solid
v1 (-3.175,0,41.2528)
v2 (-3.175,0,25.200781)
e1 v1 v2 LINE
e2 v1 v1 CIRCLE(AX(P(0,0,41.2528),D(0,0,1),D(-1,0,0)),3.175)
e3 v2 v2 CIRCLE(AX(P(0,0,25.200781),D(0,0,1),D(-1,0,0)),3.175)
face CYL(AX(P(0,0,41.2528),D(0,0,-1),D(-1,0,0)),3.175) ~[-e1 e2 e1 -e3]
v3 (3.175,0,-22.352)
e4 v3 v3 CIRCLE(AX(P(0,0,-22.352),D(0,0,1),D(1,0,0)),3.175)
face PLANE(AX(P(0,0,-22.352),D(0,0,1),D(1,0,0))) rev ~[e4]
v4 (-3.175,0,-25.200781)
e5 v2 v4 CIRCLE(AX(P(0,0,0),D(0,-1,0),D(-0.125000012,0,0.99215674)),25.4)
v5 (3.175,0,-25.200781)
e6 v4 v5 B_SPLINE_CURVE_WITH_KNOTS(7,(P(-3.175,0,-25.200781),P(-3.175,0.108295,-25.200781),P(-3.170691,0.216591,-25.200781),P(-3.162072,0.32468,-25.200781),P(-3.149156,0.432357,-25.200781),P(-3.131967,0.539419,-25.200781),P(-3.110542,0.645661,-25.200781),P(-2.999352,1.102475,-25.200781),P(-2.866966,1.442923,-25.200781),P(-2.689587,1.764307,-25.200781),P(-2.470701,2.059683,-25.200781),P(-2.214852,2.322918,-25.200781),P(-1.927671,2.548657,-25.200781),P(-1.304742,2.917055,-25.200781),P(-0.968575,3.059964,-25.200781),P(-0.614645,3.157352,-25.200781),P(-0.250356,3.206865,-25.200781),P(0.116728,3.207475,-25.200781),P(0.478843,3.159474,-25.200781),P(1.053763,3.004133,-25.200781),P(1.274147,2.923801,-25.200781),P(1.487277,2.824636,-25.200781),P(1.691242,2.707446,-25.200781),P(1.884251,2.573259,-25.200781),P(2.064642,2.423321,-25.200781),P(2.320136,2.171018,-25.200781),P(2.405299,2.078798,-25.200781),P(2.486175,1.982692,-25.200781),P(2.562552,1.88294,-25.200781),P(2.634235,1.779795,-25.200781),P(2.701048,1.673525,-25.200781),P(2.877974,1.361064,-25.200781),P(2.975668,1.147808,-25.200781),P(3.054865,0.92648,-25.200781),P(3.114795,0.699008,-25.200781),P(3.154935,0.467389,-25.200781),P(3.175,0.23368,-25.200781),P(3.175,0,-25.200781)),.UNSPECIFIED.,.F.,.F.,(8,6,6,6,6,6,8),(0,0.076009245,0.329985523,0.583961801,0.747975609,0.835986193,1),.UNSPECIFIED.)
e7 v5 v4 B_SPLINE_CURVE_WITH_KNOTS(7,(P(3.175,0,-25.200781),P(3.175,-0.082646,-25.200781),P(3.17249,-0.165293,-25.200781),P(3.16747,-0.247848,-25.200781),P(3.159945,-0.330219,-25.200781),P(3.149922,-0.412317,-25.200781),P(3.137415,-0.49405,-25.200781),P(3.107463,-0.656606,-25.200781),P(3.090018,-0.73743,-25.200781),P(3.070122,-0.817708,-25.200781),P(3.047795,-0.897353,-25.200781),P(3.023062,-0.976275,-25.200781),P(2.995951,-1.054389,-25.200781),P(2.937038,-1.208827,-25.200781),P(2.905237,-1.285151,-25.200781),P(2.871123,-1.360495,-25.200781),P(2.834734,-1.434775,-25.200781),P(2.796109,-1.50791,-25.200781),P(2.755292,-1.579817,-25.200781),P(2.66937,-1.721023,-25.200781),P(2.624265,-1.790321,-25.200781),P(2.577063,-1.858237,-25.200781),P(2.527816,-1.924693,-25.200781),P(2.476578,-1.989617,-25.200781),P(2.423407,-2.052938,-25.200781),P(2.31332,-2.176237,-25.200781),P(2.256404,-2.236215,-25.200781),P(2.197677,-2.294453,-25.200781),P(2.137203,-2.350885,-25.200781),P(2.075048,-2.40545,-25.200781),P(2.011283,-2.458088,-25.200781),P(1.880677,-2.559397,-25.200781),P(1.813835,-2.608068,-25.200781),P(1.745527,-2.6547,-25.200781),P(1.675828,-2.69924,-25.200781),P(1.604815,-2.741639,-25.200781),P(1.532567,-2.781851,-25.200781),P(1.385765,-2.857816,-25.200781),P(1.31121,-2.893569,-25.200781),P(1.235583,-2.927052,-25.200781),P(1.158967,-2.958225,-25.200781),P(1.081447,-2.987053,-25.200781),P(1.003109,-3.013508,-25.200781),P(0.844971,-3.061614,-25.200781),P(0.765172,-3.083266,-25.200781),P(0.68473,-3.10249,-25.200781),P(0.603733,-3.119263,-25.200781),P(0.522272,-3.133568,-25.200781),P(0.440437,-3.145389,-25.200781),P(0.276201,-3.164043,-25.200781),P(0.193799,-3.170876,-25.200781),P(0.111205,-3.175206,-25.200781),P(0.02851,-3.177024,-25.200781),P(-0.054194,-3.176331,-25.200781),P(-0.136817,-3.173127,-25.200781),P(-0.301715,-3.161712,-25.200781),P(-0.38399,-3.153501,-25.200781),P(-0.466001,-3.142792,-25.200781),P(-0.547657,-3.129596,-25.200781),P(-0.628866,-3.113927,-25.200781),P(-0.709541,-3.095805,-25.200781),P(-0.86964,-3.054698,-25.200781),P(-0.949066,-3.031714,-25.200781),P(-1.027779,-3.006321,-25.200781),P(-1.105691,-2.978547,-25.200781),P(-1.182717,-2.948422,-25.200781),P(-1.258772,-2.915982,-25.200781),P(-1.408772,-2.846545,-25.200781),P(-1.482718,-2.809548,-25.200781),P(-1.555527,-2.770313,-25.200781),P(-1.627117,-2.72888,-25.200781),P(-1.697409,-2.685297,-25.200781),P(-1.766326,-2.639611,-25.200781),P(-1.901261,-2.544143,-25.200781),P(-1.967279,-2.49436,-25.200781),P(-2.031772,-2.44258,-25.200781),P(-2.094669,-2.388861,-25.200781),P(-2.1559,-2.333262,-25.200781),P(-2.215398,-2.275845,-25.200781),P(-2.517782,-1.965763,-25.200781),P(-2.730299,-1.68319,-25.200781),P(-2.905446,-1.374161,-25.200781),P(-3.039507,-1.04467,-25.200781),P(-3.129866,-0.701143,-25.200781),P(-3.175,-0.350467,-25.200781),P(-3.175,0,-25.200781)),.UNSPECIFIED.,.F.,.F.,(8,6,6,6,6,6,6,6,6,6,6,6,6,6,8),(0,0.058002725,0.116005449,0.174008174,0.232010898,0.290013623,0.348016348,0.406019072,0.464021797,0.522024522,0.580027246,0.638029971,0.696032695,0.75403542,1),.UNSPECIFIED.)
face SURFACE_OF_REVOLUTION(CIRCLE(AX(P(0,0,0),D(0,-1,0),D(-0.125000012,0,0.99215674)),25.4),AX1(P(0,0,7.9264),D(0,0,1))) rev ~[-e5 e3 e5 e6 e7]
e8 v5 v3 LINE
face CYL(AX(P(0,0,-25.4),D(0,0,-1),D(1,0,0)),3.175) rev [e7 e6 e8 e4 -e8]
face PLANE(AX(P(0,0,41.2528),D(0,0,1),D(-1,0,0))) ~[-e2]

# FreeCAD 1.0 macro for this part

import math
import FreeCAD as App
import Part
import Sketcher

V = App.Vector
Q = App.Units.Quantity

doc = App.newDocument("Part")
params = doc.addObject("Spreadsheet::Sheet", "Params")
for row, (alias, value) in enumerate([
    ("sketch1_radius", "1 in"),
    ("sketch1_width", "0.125 in"),
    ("revolution_angle", "360 deg"),
    ("sketch2_diameter", "0.25 in"),
    ("pocket1_length", "0.12 in"),
], start=1):
    params.set(f"A{row}", alias)
    params.set(f"B{row}", "=" + value)
    params.setAlias(f"B{row}", alias)

body = doc.addObject("PartDesign::Body", "Body")

# Sketch on XZ plane
sketch1 = body.newObject("Sketcher::SketchObject", "Sketch")
sketch1.AttachmentSupport = (doc.getObject("XZ_Plane"), [""])
sketch1.MapMode = "FlatFace"
sketch1.addGeometry(Part.LineSegment(V(-3.175, 41.2528, 0), V(-3.175, 25.200781, 0)), False)
sketch1.addGeometry(Part.ArcOfCircle(Part.Circle(V(0, 0, 0), V(0, 0, 1), 25.4), math.radians(97.180756), math.radians(269.999999)), False)
sketch1.addGeometry(Part.LineSegment(V(0, -25.4, 0), V(0, 41.2528, 0)), False)
sketch1.addGeometry(Part.LineSegment(V(0, 41.2528, 0), V(-3.175, 41.2528, 0)), False)
sketch1.addConstraint(Sketcher.Constraint("Coincident", 0, 2, 1, 1))
sketch1.addConstraint(Sketcher.Constraint("Coincident", 1, 2, 2, 1))
sketch1.addConstraint(Sketcher.Constraint("Coincident", 2, 2, 3, 1))
sketch1.addConstraint(Sketcher.Constraint("Coincident", 3, 2, 0, 1))
sketch1.addConstraint(Sketcher.Constraint("Vertical", 0))
sketch1.addConstraint(Sketcher.Constraint("Vertical", 2))
sketch1.addConstraint(Sketcher.Constraint("Horizontal", 3))
sketch1.addConstraint(Sketcher.Constraint("Coincident", 1, 3, -1, 1))
sketch1.addConstraint(Sketcher.Constraint("PointOnObject", 1, 2, -2))
sketch1.addConstraint(Sketcher.Constraint("Radius", 1, Q("1 in")))
sketch1.addConstraint(Sketcher.Constraint("DistanceX", 3, 2, 3, 1, Q("0.125 in")))
sketch1.addConstraint(Sketcher.Constraint("DistanceY", 2, 1, 2, 2, Q("66.6528 mm")))
sketch1.setExpression("Constraints[9]", "Params.sketch1_radius")
sketch1.setExpression("Constraints[10]", "Params.sketch1_width")
revolution = body.newObject("PartDesign::Revolution", "Revolution")
revolution.Profile = sketch1
revolution.ReferenceAxis = (sketch1, ["V_Axis"])
revolution.setExpression("Angle", "Params.revolution_angle")

# Sketch on XY plane
sketch2 = body.newObject("Sketcher::SketchObject", "Sketch001")
sketch2.AttachmentSupport = (doc.getObject("XY_Plane"), [""])
sketch2.MapMode = "FlatFace"
sketch2.AttachmentOffset = App.Placement(V(0, 0, -1 * 25.4), App.Rotation())
sketch2.addGeometry(Part.Circle(V(0, 0, 0), V(0, 0, 1), 3.175), False)
sketch2.addConstraint(Sketcher.Constraint("Coincident", 0, 3, -1, 1))
sketch2.addConstraint(Sketcher.Constraint("Diameter", 0, Q("0.25 in")))
sketch2.setExpression("Constraints[1]", "Params.sketch2_diameter")
pocket1 = body.newObject("PartDesign::Pocket", "Pocket")
pocket1.Profile = sketch2
pocket1.setExpression("Length", "Params.pocket1_length")
pocket1.Reversed = True

doc.recompute()
